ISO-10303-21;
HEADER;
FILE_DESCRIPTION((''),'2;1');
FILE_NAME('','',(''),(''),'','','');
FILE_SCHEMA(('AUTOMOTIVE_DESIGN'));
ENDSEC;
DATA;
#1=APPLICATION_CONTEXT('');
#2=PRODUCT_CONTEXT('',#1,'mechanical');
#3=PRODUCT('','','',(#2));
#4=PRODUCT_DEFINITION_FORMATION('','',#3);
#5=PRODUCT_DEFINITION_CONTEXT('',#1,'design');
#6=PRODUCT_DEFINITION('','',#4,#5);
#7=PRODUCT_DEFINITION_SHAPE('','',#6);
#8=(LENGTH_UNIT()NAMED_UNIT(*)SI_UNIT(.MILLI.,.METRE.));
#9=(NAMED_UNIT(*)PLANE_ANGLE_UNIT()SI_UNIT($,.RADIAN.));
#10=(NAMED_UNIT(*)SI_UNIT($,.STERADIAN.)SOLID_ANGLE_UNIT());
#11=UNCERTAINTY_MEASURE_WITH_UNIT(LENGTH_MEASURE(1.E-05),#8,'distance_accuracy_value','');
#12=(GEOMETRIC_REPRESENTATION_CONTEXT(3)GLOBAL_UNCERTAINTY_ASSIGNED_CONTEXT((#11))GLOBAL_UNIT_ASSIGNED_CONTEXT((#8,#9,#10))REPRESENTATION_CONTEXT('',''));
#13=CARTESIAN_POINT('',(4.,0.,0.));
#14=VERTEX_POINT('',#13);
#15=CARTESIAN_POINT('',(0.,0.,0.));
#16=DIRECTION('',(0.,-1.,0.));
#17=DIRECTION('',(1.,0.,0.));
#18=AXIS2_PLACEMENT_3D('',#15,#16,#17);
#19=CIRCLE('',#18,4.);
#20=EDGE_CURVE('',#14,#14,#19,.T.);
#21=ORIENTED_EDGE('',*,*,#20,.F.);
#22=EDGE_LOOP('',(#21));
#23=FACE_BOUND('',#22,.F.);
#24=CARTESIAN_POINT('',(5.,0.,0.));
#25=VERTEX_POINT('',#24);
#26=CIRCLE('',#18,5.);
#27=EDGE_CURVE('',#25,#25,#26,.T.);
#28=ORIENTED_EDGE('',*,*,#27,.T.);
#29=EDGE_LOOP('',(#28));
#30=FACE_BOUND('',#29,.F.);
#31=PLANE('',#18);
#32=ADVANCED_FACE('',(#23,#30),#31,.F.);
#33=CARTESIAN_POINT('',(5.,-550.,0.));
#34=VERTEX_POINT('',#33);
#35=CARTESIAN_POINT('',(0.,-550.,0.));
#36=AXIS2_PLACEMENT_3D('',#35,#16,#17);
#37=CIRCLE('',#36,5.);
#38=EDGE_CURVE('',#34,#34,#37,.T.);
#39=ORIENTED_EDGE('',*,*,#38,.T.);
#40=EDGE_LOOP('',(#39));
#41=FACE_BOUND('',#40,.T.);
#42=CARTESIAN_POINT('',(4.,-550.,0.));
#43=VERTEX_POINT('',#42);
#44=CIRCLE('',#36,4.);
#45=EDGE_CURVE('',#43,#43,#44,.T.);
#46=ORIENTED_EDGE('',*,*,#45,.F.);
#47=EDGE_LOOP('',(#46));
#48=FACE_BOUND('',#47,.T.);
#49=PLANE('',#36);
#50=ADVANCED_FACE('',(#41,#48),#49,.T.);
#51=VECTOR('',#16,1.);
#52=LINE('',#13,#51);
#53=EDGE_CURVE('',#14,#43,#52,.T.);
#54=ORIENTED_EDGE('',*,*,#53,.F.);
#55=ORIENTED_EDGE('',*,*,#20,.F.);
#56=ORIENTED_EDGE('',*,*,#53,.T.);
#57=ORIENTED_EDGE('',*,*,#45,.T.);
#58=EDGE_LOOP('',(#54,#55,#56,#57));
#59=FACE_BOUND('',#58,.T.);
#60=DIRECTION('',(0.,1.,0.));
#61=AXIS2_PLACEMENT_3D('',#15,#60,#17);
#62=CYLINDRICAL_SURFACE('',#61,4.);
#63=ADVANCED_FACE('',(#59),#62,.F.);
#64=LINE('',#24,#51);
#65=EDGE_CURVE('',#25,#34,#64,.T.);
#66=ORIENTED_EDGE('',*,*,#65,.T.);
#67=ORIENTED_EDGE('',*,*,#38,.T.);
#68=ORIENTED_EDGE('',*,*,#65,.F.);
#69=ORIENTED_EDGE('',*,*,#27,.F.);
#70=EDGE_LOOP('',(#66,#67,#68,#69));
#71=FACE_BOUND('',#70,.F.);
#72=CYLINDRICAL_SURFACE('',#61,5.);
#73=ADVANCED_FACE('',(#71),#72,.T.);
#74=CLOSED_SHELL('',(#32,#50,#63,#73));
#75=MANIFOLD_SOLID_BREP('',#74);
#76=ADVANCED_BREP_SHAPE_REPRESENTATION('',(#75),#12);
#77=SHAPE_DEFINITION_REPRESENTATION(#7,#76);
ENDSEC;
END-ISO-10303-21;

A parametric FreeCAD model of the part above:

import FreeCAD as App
import Part
import Sketcher
from FreeCAD import Vector
Q = App.Units.Quantity

doc = App.newDocument("Part")
body = doc.addObject("PartDesign::Body", "Body")

# Sketch on XZ plane
sketch1 = body.newObject("Sketcher::SketchObject", "Sketch")
sketch1.AttachmentSupport = (doc.getObject("XZ_Plane"), [""])
sketch1.MapMode = "FlatFace"
sketch1.addGeometry(Part.Circle(Vector(0, 0, 0), Vector(0, 0, 1), 5), False)
sketch1.addGeometry(Part.Circle(Vector(0, 0, 0), Vector(0, 0, 1), 4), False)
sketch1.addConstraint(Sketcher.Constraint("Coincident", 0, 3, -1, 1))
sketch1.addConstraint(Sketcher.Constraint("Coincident", 1, 3, -1, 1))
sketch1.addConstraint(Sketcher.Constraint("Diameter", 0, Q("10 mm")))
sketch1.addConstraint(Sketcher.Constraint("Diameter", 1, Q("8 mm")))
pad1 = body.newObject("PartDesign::Pad", "Pad")
pad1.Profile = sketch1
pad1.Length = 550

doc.recompute()
